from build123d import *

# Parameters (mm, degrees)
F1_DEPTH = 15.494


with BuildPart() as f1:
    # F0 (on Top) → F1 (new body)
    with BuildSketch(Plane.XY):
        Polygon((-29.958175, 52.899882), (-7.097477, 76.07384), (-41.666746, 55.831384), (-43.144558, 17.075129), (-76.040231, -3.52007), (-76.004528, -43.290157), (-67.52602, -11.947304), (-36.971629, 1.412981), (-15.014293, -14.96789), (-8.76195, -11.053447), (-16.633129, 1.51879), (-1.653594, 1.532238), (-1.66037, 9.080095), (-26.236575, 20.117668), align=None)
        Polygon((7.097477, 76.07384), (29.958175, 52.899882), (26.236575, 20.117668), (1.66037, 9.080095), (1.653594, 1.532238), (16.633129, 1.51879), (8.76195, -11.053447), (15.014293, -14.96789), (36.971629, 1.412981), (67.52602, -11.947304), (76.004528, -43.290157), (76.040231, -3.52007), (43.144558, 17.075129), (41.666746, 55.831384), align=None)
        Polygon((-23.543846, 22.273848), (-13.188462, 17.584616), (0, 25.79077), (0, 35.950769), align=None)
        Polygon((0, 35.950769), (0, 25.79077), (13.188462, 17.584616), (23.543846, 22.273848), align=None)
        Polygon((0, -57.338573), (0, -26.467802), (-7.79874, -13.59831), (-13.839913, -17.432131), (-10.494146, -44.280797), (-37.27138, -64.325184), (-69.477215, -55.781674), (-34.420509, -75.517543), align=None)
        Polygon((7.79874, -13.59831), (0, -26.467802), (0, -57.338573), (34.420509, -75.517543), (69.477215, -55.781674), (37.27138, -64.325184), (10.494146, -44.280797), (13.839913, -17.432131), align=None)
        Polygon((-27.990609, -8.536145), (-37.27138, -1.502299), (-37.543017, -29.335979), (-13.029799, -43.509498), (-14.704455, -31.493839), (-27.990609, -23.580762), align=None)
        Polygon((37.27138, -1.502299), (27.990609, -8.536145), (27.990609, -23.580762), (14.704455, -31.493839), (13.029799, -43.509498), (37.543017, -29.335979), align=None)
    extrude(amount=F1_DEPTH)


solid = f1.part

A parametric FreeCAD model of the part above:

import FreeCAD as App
import Part
import Sketcher
from FreeCAD import Vector
Q = App.Units.Quantity

doc = App.newDocument("Part")
body = doc.addObject("PartDesign::Body", "Body")
body.AllowCompound = True

# Sketch on XY plane
sketch1 = doc.addObject("Sketcher::SketchObject", "Sketch")
body.addObject(sketch1)
sketch1.AttachmentSupport = (doc.XY_Plane, [""])
sketch1.MapMode = "FlatFace"
sketch1.addGeometry([
    Part.LineSegment(Vector(-29.958175, 52.899882, 0), Vector(-7.097477, 76.07384, 0)),  # 0
    Part.LineSegment(Vector(-7.097477, 76.07384, 0), Vector(-41.666746, 55.831384, 0)),  # 1
    Part.LineSegment(Vector(-41.666746, 55.831384, 0), Vector(-43.144558, 17.075129, 0)),  # 2
    Part.LineSegment(Vector(-43.144558, 17.075129, 0), Vector(-76.040231, -3.52007, 0)),  # 3
    Part.LineSegment(Vector(-76.040231, -3.52007, 0), Vector(-76.004528, -43.290157, 0)),  # 4
    Part.LineSegment(Vector(-76.004528, -43.290157, 0), Vector(-67.52602, -11.947304, 0)),  # 5
    Part.LineSegment(Vector(-67.52602, -11.947304, 0), Vector(-36.971629, 1.412981, 0)),  # 6
    Part.LineSegment(Vector(-36.971629, 1.412981, 0), Vector(-15.014293, -14.96789, 0)),  # 7
    Part.LineSegment(Vector(-15.014293, -14.96789, 0), Vector(-8.76195, -11.053447, 0)),  # 8
    Part.LineSegment(Vector(-8.76195, -11.053447, 0), Vector(-16.633129, 1.51879, 0)),  # 9
    Part.LineSegment(Vector(-16.633129, 1.51879, 0), Vector(-1.653594, 1.532238, 0)),  # 10
    Part.LineSegment(Vector(-1.653594, 1.532238, 0), Vector(-1.66037, 9.080095, 0)),  # 11
    Part.LineSegment(Vector(-1.66037, 9.080095, 0), Vector(-26.236575, 20.117668, 0)),  # 12
    Part.LineSegment(Vector(-26.236575, 20.117668, 0), Vector(-29.958175, 52.899882, 0)),  # 13
    Part.LineSegment(Vector(7.097477, 76.07384, 0), Vector(29.958175, 52.899882, 0)),  # 14
    Part.LineSegment(Vector(29.958175, 52.899882, 0), Vector(26.236575, 20.117668, 0)),  # 15
    Part.LineSegment(Vector(26.236575, 20.117668, 0), Vector(1.66037, 9.080095, 0)),  # 16
    Part.LineSegment(Vector(1.66037, 9.080095, 0), Vector(1.653594, 1.532238, 0)),  # 17
    Part.LineSegment(Vector(1.653594, 1.532238, 0), Vector(16.633129, 1.51879, 0)),  # 18
    Part.LineSegment(Vector(16.633129, 1.51879, 0), Vector(8.76195, -11.053447, 0)),  # 19
    Part.LineSegment(Vector(8.76195, -11.053447, 0), Vector(15.014293, -14.96789, 0)),  # 20
    Part.LineSegment(Vector(15.014293, -14.96789, 0), Vector(36.971629, 1.412981, 0)),  # 21
    Part.LineSegment(Vector(36.971629, 1.412981, 0), Vector(67.52602, -11.947304, 0)),  # 22
    Part.LineSegment(Vector(67.52602, -11.947304, 0), Vector(76.004528, -43.290157, 0)),  # 23
    Part.LineSegment(Vector(76.004528, -43.290157, 0), Vector(76.040231, -3.52007, 0)),  # 24
    Part.LineSegment(Vector(76.040231, -3.52007, 0), Vector(43.144558, 17.075129, 0)),  # 25
    Part.LineSegment(Vector(43.144558, 17.075129, 0), Vector(41.666746, 55.831384, 0)),  # 26
    Part.LineSegment(Vector(41.666746, 55.831384, 0), Vector(7.097477, 76.07384, 0)),  # 27
    Part.LineSegment(Vector(-23.543846, 22.273848, 0), Vector(-13.188462, 17.584616, 0)),  # 28
    Part.LineSegment(Vector(-13.188462, 17.584616, 0), Vector(0, 25.79077, 0)),  # 29
    Part.LineSegment(Vector(0, 25.79077, 0), Vector(13.188462, 17.584616, 0)),  # 30
    Part.LineSegment(Vector(13.188462, 17.584616, 0), Vector(23.543846, 22.273848, 0)),  # 31
    Part.LineSegment(Vector(23.543846, 22.273848, 0), Vector(0, 35.950769, 0)),  # 32
    Part.LineSegment(Vector(0, 35.950769, 0), Vector(-23.543846, 22.273848, 0)),  # 33
    Part.LineSegment(Vector(0, -26.467802, 0), Vector(-7.79874, -13.59831, 0)),  # 34
    Part.LineSegment(Vector(-7.79874, -13.59831, 0), Vector(-13.839913, -17.432131, 0)),  # 35
    Part.LineSegment(Vector(-13.839913, -17.432131, 0), Vector(-10.494146, -44.280797, 0)),  # 36
    Part.LineSegment(Vector(-10.494146, -44.280797, 0), Vector(-37.27138, -64.325184, 0)),  # 37
    Part.LineSegment(Vector(-37.27138, -64.325184, 0), Vector(-69.477215, -55.781674, 0)),  # 38
    Part.LineSegment(Vector(-69.477215, -55.781674, 0), Vector(-34.420509, -75.517543, 0)),  # 39
    Part.LineSegment(Vector(-34.420509, -75.517543, 0), Vector(0, -57.338573, 0)),  # 40
    Part.LineSegment(Vector(0, -57.338573, 0), Vector(34.420509, -75.517543, 0)),  # 41
    Part.LineSegment(Vector(34.420509, -75.517543, 0), Vector(69.477215, -55.781674, 0)),  # 42
    Part.LineSegment(Vector(69.477215, -55.781674, 0), Vector(37.27138, -64.325184, 0)),  # 43
    Part.LineSegment(Vector(37.27138, -64.325184, 0), Vector(10.494146, -44.280797, 0)),  # 44
    Part.LineSegment(Vector(10.494146, -44.280797, 0), Vector(13.839913, -17.432131, 0)),  # 45
    Part.LineSegment(Vector(13.839913, -17.432131, 0), Vector(7.79874, -13.59831, 0)),  # 46
    Part.LineSegment(Vector(7.79874, -13.59831, 0), Vector(0, -26.467802, 0)),  # 47
    Part.LineSegment(Vector(-27.990609, -8.536145, 0), Vector(-37.27138, -1.502299, 0)),  # 48
    Part.LineSegment(Vector(-37.27138, -1.502299, 0), Vector(-37.543017, -29.335979, 0)),  # 49
    Part.LineSegment(Vector(-37.543017, -29.335979, 0), Vector(-13.029799, -43.509498, 0)),  # 50
    Part.LineSegment(Vector(-13.029799, -43.509498, 0), Vector(-14.704455, -31.493839, 0)),  # 51
    Part.LineSegment(Vector(-14.704455, -31.493839, 0), Vector(-27.990609, -23.580762, 0)),  # 52
    Part.LineSegment(Vector(-27.990609, -23.580762, 0), Vector(-27.990609, -8.536145, 0)),  # 53
    Part.LineSegment(Vector(37.27138, -1.502299, 0), Vector(27.990609, -8.536145, 0)),  # 54
    Part.LineSegment(Vector(27.990609, -8.536145, 0), Vector(27.990609, -23.580762, 0)),  # 55
    Part.LineSegment(Vector(27.990609, -23.580762, 0), Vector(14.704455, -31.493839, 0)),  # 56
    Part.LineSegment(Vector(14.704455, -31.493839, 0), Vector(13.029799, -43.509498, 0)),  # 57
    Part.LineSegment(Vector(13.029799, -43.509498, 0), Vector(37.543017, -29.335979, 0)),  # 58
    Part.LineSegment(Vector(37.543017, -29.335979, 0), Vector(37.27138, -1.502299, 0)),  # 59
], False)
sketch1.addConstraint([
    Sketcher.Constraint("Coincident", 0, 2, 1, 1),
    Sketcher.Constraint("Coincident", 1, 2, 2, 1),
    Sketcher.Constraint("Coincident", 2, 2, 3, 1),
    Sketcher.Constraint("Coincident", 3, 2, 4, 1),
    Sketcher.Constraint("Coincident", 4, 2, 5, 1),
    Sketcher.Constraint("Coincident", 5, 2, 6, 1),
    Sketcher.Constraint("Coincident", 6, 2, 7, 1),
    Sketcher.Constraint("Coincident", 7, 2, 8, 1),
    Sketcher.Constraint("Coincident", 8, 2, 9, 1),
    Sketcher.Constraint("Coincident", 9, 2, 10, 1),
    Sketcher.Constraint("Coincident", 10, 2, 11, 1),
    Sketcher.Constraint("Coincident", 11, 2, 12, 1),
    Sketcher.Constraint("Coincident", 12, 2, 13, 1),
    Sketcher.Constraint("Coincident", 13, 2, 0, 1),
    Sketcher.Constraint("Coincident", 14, 2, 15, 1),
    Sketcher.Constraint("Coincident", 15, 2, 16, 1),
    Sketcher.Constraint("Coincident", 16, 2, 17, 1),
    Sketcher.Constraint("Coincident", 17, 2, 18, 1),
    Sketcher.Constraint("Coincident", 18, 2, 19, 1),
    Sketcher.Constraint("Coincident", 19, 2, 20, 1),
    Sketcher.Constraint("Coincident", 20, 2, 21, 1),
    Sketcher.Constraint("Coincident", 21, 2, 22, 1),
    Sketcher.Constraint("Coincident", 22, 2, 23, 1),
    Sketcher.Constraint("Coincident", 23, 2, 24, 1),
    Sketcher.Constraint("Coincident", 24, 2, 25, 1),
    Sketcher.Constraint("Coincident", 25, 2, 26, 1),
    Sketcher.Constraint("Coincident", 26, 2, 27, 1),
    Sketcher.Constraint("Coincident", 27, 2, 14, 1),
    Sketcher.Constraint("Coincident", 28, 2, 29, 1),
    Sketcher.Constraint("Coincident", 29, 2, 30, 1),
    Sketcher.Constraint("Coincident", 30, 2, 31, 1),
    Sketcher.Constraint("Coincident", 31, 2, 32, 1),
    Sketcher.Constraint("Coincident", 32, 2, 33, 1),
    Sketcher.Constraint("Coincident", 33, 2, 28, 1),
    Sketcher.Constraint("Coincident", 34, 2, 35, 1),
    Sketcher.Constraint("Coincident", 35, 2, 36, 1),
    Sketcher.Constraint("Coincident", 36, 2, 37, 1),
    Sketcher.Constraint("Coincident", 37, 2, 38, 1),
    Sketcher.Constraint("Coincident", 38, 2, 39, 1),
    Sketcher.Constraint("Coincident", 39, 2, 40, 1),
    Sketcher.Constraint("Coincident", 40, 2, 41, 1),
    Sketcher.Constraint("Coincident", 41, 2, 42, 1),
    Sketcher.Constraint("Coincident", 42, 2, 43, 1),
    Sketcher.Constraint("Coincident", 43, 2, 44, 1),
    Sketcher.Constraint("Coincident", 44, 2, 45, 1),
    Sketcher.Constraint("Coincident", 45, 2, 46, 1),
    Sketcher.Constraint("Coincident", 46, 2, 47, 1),
    Sketcher.Constraint("Coincident", 47, 2, 34, 1),
    Sketcher.Constraint("Coincident", 48, 2, 49, 1),
    Sketcher.Constraint("Coincident", 49, 2, 50, 1),
    Sketcher.Constraint("Coincident", 50, 2, 51, 1),
    Sketcher.Constraint("Coincident", 51, 2, 52, 1),
    Sketcher.Constraint("Coincident", 52, 2, 53, 1),
    Sketcher.Constraint("Coincident", 53, 2, 48, 1),
    Sketcher.Constraint("Coincident", 54, 2, 55, 1),
    Sketcher.Constraint("Coincident", 55, 2, 56, 1),
    Sketcher.Constraint("Coincident", 56, 2, 57, 1),
    Sketcher.Constraint("Coincident", 57, 2, 58, 1),
    Sketcher.Constraint("Coincident", 58, 2, 59, 1),
    Sketcher.Constraint("Coincident", 59, 2, 54, 1),
    Sketcher.Constraint("Vertical", 53),
    Sketcher.Constraint("Vertical", 55),
    Sketcher.Constraint("Symmetric", 13, 2, 14, 2, -2),
    Sketcher.Constraint("Symmetric", 12, 2, 15, 2, -2),
    Sketcher.Constraint("Symmetric", 11, 2, 16, 2, -2),
    Sketcher.Constraint("Symmetric", 10, 2, 17, 2, -2),
    Sketcher.Constraint("Symmetric", 9, 2, 18, 2, -2),
    Sketcher.Constraint("Symmetric", 8, 2, 19, 2, -2),
    Sketcher.Constraint("Symmetric", 7, 2, 20, 2, -2),
    Sketcher.Constraint("Symmetric", 6, 2, 21, 2, -2),
    Sketcher.Constraint("Symmetric", 5, 2, 22, 2, -2),
    Sketcher.Constraint("Symmetric", 4, 2, 23, 2, -2),
    Sketcher.Constraint("Symmetric", 3, 2, 24, 2, -2),
    Sketcher.Constraint("Symmetric", 2, 2, 25, 2, -2),
    Sketcher.Constraint("Symmetric", 1, 2, 26, 2, -2),
    Sketcher.Constraint("Symmetric", 0, 2, 27, 2, -2),
    Sketcher.Constraint("Symmetric", 28, 2, 30, 2, -2),
    Sketcher.Constraint("Symmetric", 31, 2, 33, 2, -2),
    Sketcher.Constraint("Symmetric", 39, 2, 41, 2, -2),
    Sketcher.Constraint("Symmetric", 38, 2, 42, 2, -2),
    Sketcher.Constraint("Symmetric", 37, 2, 43, 2, -2),
    Sketcher.Constraint("Symmetric", 36, 2, 44, 2, -2),
    Sketcher.Constraint("Symmetric", 35, 2, 45, 2, -2),
    Sketcher.Constraint("Symmetric", 34, 2, 46, 2, -2),
    Sketcher.Constraint("Symmetric", 53, 2, 54, 2, -2),
    Sketcher.Constraint("Symmetric", 51, 2, 56, 2, -2),
    Sketcher.Constraint("Symmetric", 50, 2, 57, 2, -2),
    Sketcher.Constraint("Symmetric", 49, 2, 58, 2, -2),
    Sketcher.Constraint("Symmetric", 48, 2, 59, 2, -2),
    Sketcher.Constraint("PointOnObject", 29, 2, -2),
    Sketcher.Constraint("PointOnObject", 32, 2, -2),
    Sketcher.Constraint("PointOnObject", 40, 2, -2),
    Sketcher.Constraint("PointOnObject", 47, 2, -2),
    Sketcher.Constraint("Parallel", 3, 8),
    Sketcher.Constraint("Perpendicular", 8, 9),
    Sketcher.Constraint("Perpendicular", 4, 10),
    Sketcher.Constraint("Perpendicular", 10, 11),
    Sketcher.Constraint("Horizontal", 52, 2, 55, 2),
    Sketcher.Constraint("Vertical", 37, 2, 48, 2),
    Sketcher.Constraint("DistanceY", 29, 2, 32, 2, Q("0.4 in")),
    Sketcher.Constraint("DistanceX", 5, 2, 2, 2, Q("0.9599001 in")),
    Sketcher.Constraint("Distance", 39, Q("40.230302 mm")),
    Sketcher.Constraint("Distance", 51, Q("12.131798 mm")),
    Sketcher.Constraint("DistanceY", 47, 2, -1, 1, Q("26.467802 mm")),
    Sketcher.Constraint("DistanceY", 48, 2, -1, 1, Q("1.502299 mm")),
    Sketcher.Constraint("DistanceX", 50, 2, -1, 1, Q("13.029799 mm")),
    Sketcher.Constraint("DistanceY", 3, 2, 2, 2, Q("20.595199 mm")),
    Sketcher.Constraint("DistanceX", 4, 2, 6, 2, Q("39.032899 mm")),
    Sketcher.Constraint("DistanceX", 6, 2, 9, 2, Q("20.3385 mm")),
    Sketcher.Constraint("DistanceX", 7, 2, 10, 2, Q("13.360699 mm")),
    Sketcher.Constraint("DistanceX", 13, 2, 12, 2, Q("3.7216 mm")),
    Sketcher.Constraint("DistanceY", 6, 2, 13, 2, Q("51.486901 mm")),
    Sketcher.Constraint("DistanceX", 9, 2, 16, 2, Q("18.293499 mm")),
    Sketcher.Constraint("DistanceX", 8, 2, 19, 2, Q("17.5239 mm")),
    Sketcher.Constraint("DistanceY", 34, 2, 9, 2, Q("15.1171 mm")),
    Sketcher.Constraint("DistanceY", 36, 2, 50, 2, Q("0.771299 mm")),
    Sketcher.Constraint("Distance", 0, Q("32.552171 mm")),
    Sketcher.Constraint("Distance", 2, Q("38.78442 mm")),
    Sketcher.Constraint("Distance", 3, Q("38.81092 mm")),
    Sketcher.Constraint("Distance", 7, Q("27.39448 mm")),
    Sketcher.Constraint("Distance", 8, Q("7.376629 mm")),
    Sketcher.Constraint("Distance", 10, Q("14.979541 mm")),
    Sketcher.Constraint("Distance", 11, Q("7.54786 mm")),
    Sketcher.Constraint("Distance", 34, Q("15.048062 mm")),
    Sketcher.Constraint("Distance", 36, Q("27.056331 mm")),
    Sketcher.Constraint("Distance", 48, Q("11.645072 mm")),
    Sketcher.Constraint("Distance", 52, Q("15.464109 mm")),
    Sketcher.Constraint("DistanceY", 53, 1, 53, 2, Q("15.044617 mm")),
    Sketcher.Constraint("DistanceY", -1, 1, 0, 2, Q("76.07384 mm")),
    Sketcher.Constraint("DistanceY", -1, 1, 2, 2, Q("17.075129 mm")),
    Sketcher.Constraint("DistanceY", -1, 1, 6, 2, Q("1.412981 mm")),
    Sketcher.Constraint("DistanceY", -1, 1, 29, 2, Q("25.79077 mm")),
    Sketcher.Constraint("DistanceY", -1, 1, 31, 2, Q("22.273848 mm")),
    Sketcher.Constraint("DistanceY", 35, 2, -1, 1, Q("17.432131 mm")),
    Sketcher.Constraint("DistanceX", 37, 2, -1, 1, Q("37.27138 mm")),
    Sketcher.Constraint("DistanceX", 39, 2, -1, 1, Q("34.420509 mm")),
    Sketcher.Constraint("DistanceY", 49, 2, -1, 1, Q("29.335979 mm")),
    Sketcher.Constraint("DistanceY", 51, 2, -1, 1, Q("31.493839 mm")),
    Sketcher.Constraint("DistanceX", 52, 2, -1, 1, Q("27.990609 mm")),
    Sketcher.Constraint("DistanceX", 1, 2, 0, 2, Q("34.569269 mm")),
    Sketcher.Constraint("DistanceX", 2, 2, 0, 2, Q("36.047081 mm")),
    Sketcher.Constraint("DistanceY", 4, 2, 1, 2, Q("99.121541 mm")),
    Sketcher.Constraint("DistanceY", 5, 2, 1, 2, Q("67.778688 mm")),
    Sketcher.Constraint("DistanceY", 2, 2, 12, 2, Q("3.042539 mm")),
    Sketcher.Constraint("DistanceY", 28, 2, 12, 2, Q("2.533052 mm")),
    Sketcher.Constraint("DistanceX", 28, 2, 11, 2, Q("11.528092 mm")),
    Sketcher.Constraint("DistanceX", 31, 2, 15, 2, Q("2.692729 mm")),
    Sketcher.Constraint("DistanceX", 7, 2, 35, 2, Q("1.17438 mm")),
    Sketcher.Constraint("DistanceY", 37, 2, 38, 2, Q("8.54351 mm")),
    Sketcher.Constraint("DistanceY", 38, 2, 5, 2, Q("43.83437 mm")),
    Sketcher.Constraint("DistanceX", 38, 2, 36, 2, Q("58.983069 mm")),
    Sketcher.Constraint("DistanceY", 37, 2, 40, 2, Q("6.986611 mm")),
    Sketcher.Constraint("DistanceX", 49, 2, 36, 2, Q("27.048871 mm")),
])
pad1 = doc.addObject("PartDesign::Pad", "Pad")
body.addObject(pad1)
pad1.Profile = sketch1
pad1.Length = Q("0.61 in")

doc.recompute()
